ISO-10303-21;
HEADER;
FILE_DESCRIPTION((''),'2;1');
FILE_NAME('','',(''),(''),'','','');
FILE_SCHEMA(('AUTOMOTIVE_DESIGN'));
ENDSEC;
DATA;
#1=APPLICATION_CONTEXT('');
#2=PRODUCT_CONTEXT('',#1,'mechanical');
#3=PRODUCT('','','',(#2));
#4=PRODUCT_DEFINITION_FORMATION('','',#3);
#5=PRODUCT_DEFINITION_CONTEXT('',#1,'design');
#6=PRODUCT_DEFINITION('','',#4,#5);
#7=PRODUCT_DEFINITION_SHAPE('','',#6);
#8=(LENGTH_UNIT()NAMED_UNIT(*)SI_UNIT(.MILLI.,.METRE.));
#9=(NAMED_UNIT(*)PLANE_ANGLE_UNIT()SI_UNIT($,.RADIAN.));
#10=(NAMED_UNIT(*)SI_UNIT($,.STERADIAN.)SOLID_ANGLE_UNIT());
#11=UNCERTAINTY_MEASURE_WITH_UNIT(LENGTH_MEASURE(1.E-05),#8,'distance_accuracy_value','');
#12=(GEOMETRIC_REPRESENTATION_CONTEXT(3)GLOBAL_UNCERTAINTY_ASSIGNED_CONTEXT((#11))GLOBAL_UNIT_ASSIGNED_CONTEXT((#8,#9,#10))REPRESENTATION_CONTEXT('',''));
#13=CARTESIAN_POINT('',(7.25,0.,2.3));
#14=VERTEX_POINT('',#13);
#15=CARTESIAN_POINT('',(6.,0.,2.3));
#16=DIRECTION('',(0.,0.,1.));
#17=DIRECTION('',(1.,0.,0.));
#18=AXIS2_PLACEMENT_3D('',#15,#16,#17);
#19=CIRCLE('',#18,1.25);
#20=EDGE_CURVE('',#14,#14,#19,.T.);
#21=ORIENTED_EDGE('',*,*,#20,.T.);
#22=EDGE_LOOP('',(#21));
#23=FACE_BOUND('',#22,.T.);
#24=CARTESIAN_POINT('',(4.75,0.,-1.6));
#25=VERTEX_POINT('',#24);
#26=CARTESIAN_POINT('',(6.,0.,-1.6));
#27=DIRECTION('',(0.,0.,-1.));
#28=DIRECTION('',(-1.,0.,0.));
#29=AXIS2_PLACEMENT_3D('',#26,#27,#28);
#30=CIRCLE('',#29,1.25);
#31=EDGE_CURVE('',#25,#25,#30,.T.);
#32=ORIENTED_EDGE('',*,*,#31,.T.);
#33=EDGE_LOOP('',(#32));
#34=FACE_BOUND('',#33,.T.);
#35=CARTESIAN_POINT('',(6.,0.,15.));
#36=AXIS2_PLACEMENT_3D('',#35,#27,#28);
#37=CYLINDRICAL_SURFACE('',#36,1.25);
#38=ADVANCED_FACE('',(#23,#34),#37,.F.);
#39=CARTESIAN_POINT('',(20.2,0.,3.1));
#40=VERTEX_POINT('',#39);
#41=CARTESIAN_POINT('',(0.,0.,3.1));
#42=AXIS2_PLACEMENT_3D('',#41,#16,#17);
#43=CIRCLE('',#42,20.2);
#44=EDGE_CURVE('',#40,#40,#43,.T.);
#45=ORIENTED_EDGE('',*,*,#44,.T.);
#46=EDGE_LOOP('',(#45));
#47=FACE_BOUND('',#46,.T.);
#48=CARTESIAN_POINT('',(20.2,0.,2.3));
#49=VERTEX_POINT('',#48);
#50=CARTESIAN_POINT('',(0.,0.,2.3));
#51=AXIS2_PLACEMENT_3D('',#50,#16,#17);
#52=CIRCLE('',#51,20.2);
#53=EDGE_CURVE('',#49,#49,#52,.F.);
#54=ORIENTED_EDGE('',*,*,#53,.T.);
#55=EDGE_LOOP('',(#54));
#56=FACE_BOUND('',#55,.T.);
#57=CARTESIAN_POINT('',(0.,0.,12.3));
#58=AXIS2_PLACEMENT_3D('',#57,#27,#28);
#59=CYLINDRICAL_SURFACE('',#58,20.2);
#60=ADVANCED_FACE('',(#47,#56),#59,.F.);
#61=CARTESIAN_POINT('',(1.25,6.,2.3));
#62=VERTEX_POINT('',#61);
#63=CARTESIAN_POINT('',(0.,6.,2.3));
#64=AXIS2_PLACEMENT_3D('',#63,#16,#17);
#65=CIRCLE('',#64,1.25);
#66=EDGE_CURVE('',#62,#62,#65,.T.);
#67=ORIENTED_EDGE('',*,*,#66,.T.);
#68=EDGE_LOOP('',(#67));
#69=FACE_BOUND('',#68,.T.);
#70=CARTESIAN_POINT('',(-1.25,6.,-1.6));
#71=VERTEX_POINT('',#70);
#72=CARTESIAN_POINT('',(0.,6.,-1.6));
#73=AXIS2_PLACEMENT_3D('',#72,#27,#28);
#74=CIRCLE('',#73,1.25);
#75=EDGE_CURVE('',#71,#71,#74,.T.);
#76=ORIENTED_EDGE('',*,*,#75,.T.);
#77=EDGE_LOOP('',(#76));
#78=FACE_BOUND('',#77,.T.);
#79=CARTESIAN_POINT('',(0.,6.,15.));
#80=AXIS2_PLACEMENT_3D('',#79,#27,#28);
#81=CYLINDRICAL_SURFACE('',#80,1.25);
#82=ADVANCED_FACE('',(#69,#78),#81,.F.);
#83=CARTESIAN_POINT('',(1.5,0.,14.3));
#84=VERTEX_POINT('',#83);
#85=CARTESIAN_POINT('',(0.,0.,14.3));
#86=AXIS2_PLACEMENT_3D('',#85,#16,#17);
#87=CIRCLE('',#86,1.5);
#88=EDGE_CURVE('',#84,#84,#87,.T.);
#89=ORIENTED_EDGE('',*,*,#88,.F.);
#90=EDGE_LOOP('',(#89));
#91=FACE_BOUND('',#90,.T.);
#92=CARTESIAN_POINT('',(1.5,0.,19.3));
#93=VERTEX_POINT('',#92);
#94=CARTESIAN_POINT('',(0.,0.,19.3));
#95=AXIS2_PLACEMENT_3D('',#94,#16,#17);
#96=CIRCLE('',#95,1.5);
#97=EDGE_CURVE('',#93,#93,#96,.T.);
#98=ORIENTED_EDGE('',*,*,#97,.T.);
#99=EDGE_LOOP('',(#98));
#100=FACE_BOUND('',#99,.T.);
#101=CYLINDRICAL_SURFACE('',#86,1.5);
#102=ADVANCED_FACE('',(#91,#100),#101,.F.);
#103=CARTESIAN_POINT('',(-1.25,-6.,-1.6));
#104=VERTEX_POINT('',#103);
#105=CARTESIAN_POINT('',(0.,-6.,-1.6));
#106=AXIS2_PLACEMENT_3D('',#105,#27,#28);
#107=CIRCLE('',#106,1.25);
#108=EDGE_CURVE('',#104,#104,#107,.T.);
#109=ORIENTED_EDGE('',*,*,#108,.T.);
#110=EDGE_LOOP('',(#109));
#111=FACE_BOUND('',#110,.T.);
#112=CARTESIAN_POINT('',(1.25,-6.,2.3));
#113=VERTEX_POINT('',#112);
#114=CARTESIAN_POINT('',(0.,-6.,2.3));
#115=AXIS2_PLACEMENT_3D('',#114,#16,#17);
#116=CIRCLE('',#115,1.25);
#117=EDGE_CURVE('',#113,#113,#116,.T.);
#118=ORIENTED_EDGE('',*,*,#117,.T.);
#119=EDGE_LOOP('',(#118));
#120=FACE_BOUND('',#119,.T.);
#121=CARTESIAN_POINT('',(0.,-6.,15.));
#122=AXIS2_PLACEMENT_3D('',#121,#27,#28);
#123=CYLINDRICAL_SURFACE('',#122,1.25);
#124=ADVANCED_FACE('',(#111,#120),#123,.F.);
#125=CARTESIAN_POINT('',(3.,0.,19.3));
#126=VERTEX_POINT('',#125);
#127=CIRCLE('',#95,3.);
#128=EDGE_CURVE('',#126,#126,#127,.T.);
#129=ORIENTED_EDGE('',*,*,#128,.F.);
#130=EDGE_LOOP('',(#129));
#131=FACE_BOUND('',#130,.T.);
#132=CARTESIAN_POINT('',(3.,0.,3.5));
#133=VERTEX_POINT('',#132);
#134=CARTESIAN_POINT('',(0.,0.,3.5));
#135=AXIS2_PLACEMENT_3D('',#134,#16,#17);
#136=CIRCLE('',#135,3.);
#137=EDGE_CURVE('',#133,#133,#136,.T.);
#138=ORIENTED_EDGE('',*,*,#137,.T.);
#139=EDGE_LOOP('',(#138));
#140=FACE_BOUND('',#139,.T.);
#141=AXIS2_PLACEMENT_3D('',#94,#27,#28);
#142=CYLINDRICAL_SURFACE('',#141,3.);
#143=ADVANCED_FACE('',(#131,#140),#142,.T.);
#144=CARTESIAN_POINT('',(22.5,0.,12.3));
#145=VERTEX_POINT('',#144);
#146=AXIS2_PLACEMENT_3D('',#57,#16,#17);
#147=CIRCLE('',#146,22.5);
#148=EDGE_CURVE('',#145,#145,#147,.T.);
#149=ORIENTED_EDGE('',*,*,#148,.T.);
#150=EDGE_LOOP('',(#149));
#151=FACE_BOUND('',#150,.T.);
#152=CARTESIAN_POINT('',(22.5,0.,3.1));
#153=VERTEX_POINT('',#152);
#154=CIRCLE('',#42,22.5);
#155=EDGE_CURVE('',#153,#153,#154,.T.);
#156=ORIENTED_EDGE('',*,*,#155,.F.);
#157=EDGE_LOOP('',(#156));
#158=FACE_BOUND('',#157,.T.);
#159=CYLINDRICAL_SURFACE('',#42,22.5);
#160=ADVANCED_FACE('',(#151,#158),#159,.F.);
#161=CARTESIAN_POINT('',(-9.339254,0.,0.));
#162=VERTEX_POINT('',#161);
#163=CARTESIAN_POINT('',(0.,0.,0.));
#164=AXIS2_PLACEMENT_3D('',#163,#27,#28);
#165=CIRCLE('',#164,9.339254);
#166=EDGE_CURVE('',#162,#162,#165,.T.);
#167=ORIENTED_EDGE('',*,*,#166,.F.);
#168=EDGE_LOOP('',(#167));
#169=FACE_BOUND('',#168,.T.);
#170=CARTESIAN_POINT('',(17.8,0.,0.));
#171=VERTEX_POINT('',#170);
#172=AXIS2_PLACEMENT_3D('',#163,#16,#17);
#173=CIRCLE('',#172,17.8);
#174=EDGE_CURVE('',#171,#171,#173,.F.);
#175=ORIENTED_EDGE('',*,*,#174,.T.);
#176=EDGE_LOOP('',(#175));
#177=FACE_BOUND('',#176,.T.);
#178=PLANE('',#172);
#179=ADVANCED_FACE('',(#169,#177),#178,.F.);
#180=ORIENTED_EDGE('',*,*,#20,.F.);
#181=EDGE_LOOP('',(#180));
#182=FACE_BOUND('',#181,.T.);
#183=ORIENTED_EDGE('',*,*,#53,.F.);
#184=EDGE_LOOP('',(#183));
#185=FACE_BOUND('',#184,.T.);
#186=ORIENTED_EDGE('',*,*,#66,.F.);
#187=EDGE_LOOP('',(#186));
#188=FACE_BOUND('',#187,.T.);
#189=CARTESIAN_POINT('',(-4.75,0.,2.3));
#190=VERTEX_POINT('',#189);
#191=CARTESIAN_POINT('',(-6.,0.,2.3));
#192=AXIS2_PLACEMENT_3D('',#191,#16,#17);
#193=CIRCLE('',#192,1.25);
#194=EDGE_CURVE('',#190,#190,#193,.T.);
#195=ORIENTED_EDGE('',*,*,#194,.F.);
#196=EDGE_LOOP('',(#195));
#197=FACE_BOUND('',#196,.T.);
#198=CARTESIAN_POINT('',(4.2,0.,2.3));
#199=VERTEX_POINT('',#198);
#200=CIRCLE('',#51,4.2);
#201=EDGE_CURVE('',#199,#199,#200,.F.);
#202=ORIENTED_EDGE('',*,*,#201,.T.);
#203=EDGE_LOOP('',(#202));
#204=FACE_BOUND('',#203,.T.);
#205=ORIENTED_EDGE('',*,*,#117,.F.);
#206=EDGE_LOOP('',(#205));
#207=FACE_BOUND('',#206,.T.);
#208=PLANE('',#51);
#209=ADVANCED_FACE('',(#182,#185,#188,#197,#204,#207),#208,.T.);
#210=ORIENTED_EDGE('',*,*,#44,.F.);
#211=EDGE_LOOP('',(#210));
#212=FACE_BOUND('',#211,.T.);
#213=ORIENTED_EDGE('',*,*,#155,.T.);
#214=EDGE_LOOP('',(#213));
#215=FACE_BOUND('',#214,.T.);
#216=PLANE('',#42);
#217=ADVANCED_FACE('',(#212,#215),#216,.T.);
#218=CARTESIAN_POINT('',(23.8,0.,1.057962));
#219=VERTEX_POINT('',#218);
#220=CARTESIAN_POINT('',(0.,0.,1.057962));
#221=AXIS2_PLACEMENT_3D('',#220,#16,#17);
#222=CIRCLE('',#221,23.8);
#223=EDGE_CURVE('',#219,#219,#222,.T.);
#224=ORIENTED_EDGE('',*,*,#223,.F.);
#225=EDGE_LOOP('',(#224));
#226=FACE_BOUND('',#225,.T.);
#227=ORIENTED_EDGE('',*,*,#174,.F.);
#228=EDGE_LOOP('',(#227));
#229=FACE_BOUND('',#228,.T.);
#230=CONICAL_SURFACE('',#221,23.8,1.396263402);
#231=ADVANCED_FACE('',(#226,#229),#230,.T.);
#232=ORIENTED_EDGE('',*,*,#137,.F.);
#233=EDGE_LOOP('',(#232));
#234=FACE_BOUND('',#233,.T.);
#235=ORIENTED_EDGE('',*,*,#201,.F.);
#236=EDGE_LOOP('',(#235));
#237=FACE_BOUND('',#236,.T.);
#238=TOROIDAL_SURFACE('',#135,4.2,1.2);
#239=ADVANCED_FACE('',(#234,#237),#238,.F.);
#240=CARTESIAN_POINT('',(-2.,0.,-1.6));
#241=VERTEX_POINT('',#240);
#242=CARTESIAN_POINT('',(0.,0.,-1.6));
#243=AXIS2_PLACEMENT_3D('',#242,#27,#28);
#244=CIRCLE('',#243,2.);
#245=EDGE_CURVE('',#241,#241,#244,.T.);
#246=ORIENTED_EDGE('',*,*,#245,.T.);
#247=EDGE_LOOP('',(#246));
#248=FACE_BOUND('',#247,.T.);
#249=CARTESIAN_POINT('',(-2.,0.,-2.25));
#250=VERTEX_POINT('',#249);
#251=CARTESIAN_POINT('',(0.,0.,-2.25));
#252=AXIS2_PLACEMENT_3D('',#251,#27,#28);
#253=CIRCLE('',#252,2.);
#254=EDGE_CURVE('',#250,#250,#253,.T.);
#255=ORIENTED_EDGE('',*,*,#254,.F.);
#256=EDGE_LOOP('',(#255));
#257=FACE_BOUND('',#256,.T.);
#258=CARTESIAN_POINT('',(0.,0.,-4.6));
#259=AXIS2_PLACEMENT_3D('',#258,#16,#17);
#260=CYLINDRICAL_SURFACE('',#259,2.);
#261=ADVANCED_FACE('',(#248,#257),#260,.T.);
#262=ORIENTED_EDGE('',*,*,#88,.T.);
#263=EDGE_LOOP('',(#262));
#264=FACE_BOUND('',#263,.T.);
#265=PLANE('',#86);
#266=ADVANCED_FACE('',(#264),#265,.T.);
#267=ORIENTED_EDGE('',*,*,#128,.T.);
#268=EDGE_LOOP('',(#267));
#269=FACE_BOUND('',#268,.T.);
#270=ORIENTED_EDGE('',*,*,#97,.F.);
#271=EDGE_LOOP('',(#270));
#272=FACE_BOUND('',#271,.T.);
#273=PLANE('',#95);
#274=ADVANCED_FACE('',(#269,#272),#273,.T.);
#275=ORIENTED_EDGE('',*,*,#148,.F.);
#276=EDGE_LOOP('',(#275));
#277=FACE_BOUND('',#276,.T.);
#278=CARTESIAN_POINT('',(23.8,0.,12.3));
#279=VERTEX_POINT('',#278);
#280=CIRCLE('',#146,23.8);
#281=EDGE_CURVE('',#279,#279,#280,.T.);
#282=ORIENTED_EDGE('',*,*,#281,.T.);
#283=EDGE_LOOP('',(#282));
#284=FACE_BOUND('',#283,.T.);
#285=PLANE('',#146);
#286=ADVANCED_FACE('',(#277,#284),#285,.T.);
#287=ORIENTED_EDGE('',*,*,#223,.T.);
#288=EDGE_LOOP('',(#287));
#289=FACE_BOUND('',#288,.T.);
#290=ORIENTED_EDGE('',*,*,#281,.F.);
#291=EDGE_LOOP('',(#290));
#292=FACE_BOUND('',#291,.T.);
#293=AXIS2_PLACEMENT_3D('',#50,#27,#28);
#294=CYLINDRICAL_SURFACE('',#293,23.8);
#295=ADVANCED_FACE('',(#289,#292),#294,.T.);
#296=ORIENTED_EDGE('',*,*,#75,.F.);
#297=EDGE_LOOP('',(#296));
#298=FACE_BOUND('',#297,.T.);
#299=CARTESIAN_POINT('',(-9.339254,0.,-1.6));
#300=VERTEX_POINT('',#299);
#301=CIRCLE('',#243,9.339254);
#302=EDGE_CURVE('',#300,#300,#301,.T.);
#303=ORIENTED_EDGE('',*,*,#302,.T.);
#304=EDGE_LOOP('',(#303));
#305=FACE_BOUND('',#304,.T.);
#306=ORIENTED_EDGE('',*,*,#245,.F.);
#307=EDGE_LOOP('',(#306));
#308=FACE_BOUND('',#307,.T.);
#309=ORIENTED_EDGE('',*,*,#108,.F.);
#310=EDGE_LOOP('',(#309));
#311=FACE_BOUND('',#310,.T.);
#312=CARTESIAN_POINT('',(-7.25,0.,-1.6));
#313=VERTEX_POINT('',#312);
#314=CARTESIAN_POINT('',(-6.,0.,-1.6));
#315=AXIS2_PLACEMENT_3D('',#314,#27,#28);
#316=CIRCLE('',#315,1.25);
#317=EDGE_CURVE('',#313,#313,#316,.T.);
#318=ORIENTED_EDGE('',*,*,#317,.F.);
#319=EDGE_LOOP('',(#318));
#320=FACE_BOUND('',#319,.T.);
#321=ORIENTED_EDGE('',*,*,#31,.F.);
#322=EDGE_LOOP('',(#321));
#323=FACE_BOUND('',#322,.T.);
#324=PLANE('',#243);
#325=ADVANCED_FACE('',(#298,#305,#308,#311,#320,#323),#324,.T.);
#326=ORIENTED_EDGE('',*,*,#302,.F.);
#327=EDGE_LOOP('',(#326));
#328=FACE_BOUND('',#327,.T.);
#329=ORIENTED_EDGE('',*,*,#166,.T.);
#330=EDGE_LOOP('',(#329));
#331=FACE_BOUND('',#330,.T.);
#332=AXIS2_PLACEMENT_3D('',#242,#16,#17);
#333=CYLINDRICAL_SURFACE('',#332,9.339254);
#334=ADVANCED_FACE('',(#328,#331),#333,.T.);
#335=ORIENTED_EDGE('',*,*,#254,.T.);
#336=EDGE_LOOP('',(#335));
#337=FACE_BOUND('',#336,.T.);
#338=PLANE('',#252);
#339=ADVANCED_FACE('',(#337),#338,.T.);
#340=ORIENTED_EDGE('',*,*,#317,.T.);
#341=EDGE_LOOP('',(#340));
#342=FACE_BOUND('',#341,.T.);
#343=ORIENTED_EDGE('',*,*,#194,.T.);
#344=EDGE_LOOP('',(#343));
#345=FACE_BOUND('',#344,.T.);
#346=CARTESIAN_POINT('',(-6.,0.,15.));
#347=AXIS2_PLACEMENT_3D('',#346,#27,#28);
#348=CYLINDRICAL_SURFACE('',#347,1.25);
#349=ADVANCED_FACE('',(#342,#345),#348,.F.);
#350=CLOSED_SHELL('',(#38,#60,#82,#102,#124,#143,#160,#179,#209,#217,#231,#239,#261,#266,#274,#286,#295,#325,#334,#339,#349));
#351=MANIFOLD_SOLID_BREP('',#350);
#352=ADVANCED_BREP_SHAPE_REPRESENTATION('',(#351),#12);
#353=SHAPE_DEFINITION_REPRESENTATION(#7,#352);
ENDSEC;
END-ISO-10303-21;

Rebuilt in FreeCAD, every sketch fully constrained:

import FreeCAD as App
import Part
import Sketcher
from FreeCAD import Vector


def edges_at(feature, points):
    """Names of the edges that pass closest to the given points."""
    edges = feature.Shape.Edges
    near = lambda p: min(range(len(edges)), key=lambda i: edges[i].distToShape(Part.Vertex(*p))[0])
    return sorted({f"Edge{near(p) + 1}" for p in points})

doc = App.newDocument("Part")
body = doc.addObject("PartDesign::Body", "Body")

# Sketch on XY plane
sketch1 = body.newObject("Sketcher::SketchObject", "Sketch")
sketch1.AttachmentSupport = (doc.getObject("XY_Plane"), [""])
sketch1.MapMode = "FlatFace"
sketch1.addGeometry(Part.Circle(Vector(0, 0, 0), Vector(0, 0, 1), 24), False)
sketch1.addConstraint([
    Sketcher.Constraint("Coincident", 0, 3, -1, 1),
    Sketcher.Constraint("Diameter", 0, 47.6),
])
pad1 = body.newObject("PartDesign::Pad", "Pad")
pad1.Profile = sketch1
pad1.Length = 2.3

# Sketch on XY plane
sketch2 = body.newObject("Sketcher::SketchObject", "Sketch001")
sketch2.AttachmentSupport = (doc.getObject("XY_Plane"), [""])
sketch2.MapMode = "FlatFace"
sketch2.AttachmentOffset = App.Placement(Vector(0, 0, 2.3), App.Rotation())
sketch2.addGeometry([
    Part.Circle(Vector(0, 0, 0), Vector(0, 0, 1), 24),
    Part.Circle(Vector(0, 0, 0), Vector(0, 0, 1), 20),
], False)
sketch2.addConstraint([
    Sketcher.Constraint("Coincident", 0, 3, -1, 1),
    Sketcher.Constraint("Coincident", 1, 3, -1, 1),
    Sketcher.Constraint("Diameter", 0, 47.6),
    Sketcher.Constraint("Diameter", 1, 40.4),
])
pad2 = body.newObject("PartDesign::Pad", "Pad001")
pad2.Profile = sketch2
pad2.Length = 10

# Sketch on XY plane
sketch3 = body.newObject("Sketcher::SketchObject", "Sketch002")
sketch3.AttachmentSupport = (doc.getObject("XY_Plane"), [""])
sketch3.MapMode = "FlatFace"
sketch3.AttachmentOffset = App.Placement(Vector(0, 0, 2.3), App.Rotation())
sketch3.addGeometry(Part.Circle(Vector(0, 0, 0), Vector(0, 0, 1), 3), False)
sketch3.addConstraint([
    Sketcher.Constraint("Coincident", 0, 3, -1, 1),
    Sketcher.Constraint("Diameter", 0, 6.0),
])
pad3 = body.newObject("PartDesign::Pad", "Pad002")
pad3.Profile = sketch3
pad3.Length = 17
doc.recompute()

chamfer = body.newObject("PartDesign::Chamfer", "Chamfer")
chamfer.Base = (pad3, edges_at(pad3, [(-23.8, 0, 0)]))
chamfer.ChamferType = "Two distances"
chamfer.Size = 6
chamfer.Size2 = 1.057962
chamfer.FlipDirection = True

# Sketch on XY plane
sketch4 = body.newObject("Sketcher::SketchObject", "Sketch003")
sketch4.AttachmentSupport = (doc.getObject("XY_Plane"), [""])
sketch4.MapMode = "FlatFace"
sketch4.addGeometry([
    Part.Circle(Vector(-6, 0, 0), Vector(0, 0, 1), 1.2),
    Part.Circle(Vector(0, -6, 0), Vector(0, 0, 1), 1.2),
    Part.Circle(Vector(6, 0, 0), Vector(0, 0, 1), 1.2),
    Part.Circle(Vector(0, 6, 0), Vector(0, 0, 1), 1.2),
], False)
sketch4.addConstraint([
    Sketcher.Constraint("Equal", 0, 1),
    Sketcher.Constraint("Equal", 1, 2),
    Sketcher.Constraint("Equal", 2, 3),
    Sketcher.Constraint("Symmetric", 0, 3, 2, 3, -1, 1),
    Sketcher.Constraint("Symmetric", 1, 3, 3, 3, -1, 1),
    Sketcher.Constraint("PointOnObject", 0, 3, -1),
    Sketcher.Constraint("PointOnObject", 1, 3, -2),
    Sketcher.Constraint("Diameter", 0, 2.5),
    Sketcher.Constraint("DistanceX", 0, 3, -1, 1, 6.0),
    Sketcher.Constraint("DistanceY", 1, 3, -1, 1, 6.0),
])
pocket1 = body.newObject("PartDesign::Pocket", "Pocket")
pocket1.Profile = sketch4
pocket1.Length = 15
pocket1.Reversed = True

# Sketch on XY plane
sketch5 = body.newObject("Sketcher::SketchObject", "Sketch004")
sketch5.AttachmentSupport = (doc.getObject("XY_Plane"), [""])
sketch5.MapMode = "FlatFace"
sketch5.AttachmentOffset = App.Placement(Vector(0, 0, 3.1), App.Rotation())
sketch5.addGeometry([
    Part.Circle(Vector(0, 0, 0), Vector(0, 0, 1), 22),
    Part.Circle(Vector(0, 0, 0), Vector(0, 0, 1), 20),
], False)
sketch5.addConstraint([
    Sketcher.Constraint("Coincident", 0, 3, -1, 1),
    Sketcher.Constraint("Coincident", 1, 3, -1, 1),
    Sketcher.Constraint("Diameter", 0, 45.0),
    Sketcher.Constraint("Diameter", 1, 40.4),
])
pocket2 = body.newObject("PartDesign::Pocket", "Pocket001")
pocket2.Profile = sketch5
pocket2.Length = 9.2
pocket2.Reversed = True

# Sketch on XY plane
sketch6 = body.newObject("Sketcher::SketchObject", "Sketch005")
sketch6.AttachmentSupport = (doc.getObject("XY_Plane"), [""])
sketch6.MapMode = "FlatFace"
sketch6.AttachmentOffset = App.Placement(Vector(0, 0, 19.3), App.Rotation())
sketch6.addGeometry(Part.Circle(Vector(0, 0, 0), Vector(0, 0, 1), 1.5), False)
sketch6.addConstraint([
    Sketcher.Constraint("Coincident", 0, 3, -1, 1),
    Sketcher.Constraint("Diameter", 0, 3.0),
])
pocket3 = body.newObject("PartDesign::Pocket", "Pocket002")
pocket3.Profile = sketch6
pocket3.Length = 5
doc.recompute()

fillet = body.newObject("PartDesign::Fillet", "Fillet")
fillet.Base = (pocket3, edges_at(pocket3, [(-3, 0, 2.3)]))
fillet.Radius = 1.2

# Sketch on XY plane
sketch7 = body.newObject("Sketcher::SketchObject", "Sketch006")
sketch7.AttachmentSupport = (doc.getObject("XY_Plane"), [""])
sketch7.MapMode = "FlatFace"
sketch7.AttachmentOffset = App.Placement(Vector(0, 0, -1.6), App.Rotation())
sketch7.addGeometry([
    Part.Circle(Vector(0, 0, 0), Vector(0, 0, 1), 9.3),  # 0
    Part.Circle(Vector(0, -6, 0), Vector(0, 0, 1), 1.2),  # 1
    Part.Circle(Vector(6, 0, 0), Vector(0, 0, 1), 1.2),  # 2
    Part.Circle(Vector(-6, 0, 0), Vector(0, 0, 1), 1.2),  # 3
    Part.Circle(Vector(0, 6, 0), Vector(0, 0, 1), 1.2),  # 4
], False)
sketch7.addConstraint([
    Sketcher.Constraint("Coincident", 0, 3, -1, 1),
    Sketcher.Constraint("Equal", 1, 2),
    Sketcher.Constraint("Equal", 2, 3),
    Sketcher.Constraint("Equal", 3, 4),
    Sketcher.Constraint("Symmetric", 2, 3, 3, 3, -1, 1),
    Sketcher.Constraint("Symmetric", 1, 3, 4, 3, -1, 1),
    Sketcher.Constraint("PointOnObject", 1, 3, -2),
    Sketcher.Constraint("PointOnObject", 2, 3, -1),
    Sketcher.Constraint("Diameter", 1, 2.5),
    Sketcher.Constraint("DistanceY", 1, 3, -1, 1, 6.0),
    Sketcher.Constraint("DistanceX", -1, 1, 2, 3, 6.0),
    Sketcher.Constraint("Diameter", 0, 18.678508),
])
pad4 = body.newObject("PartDesign::Pad", "Pad003")
pad4.Profile = sketch7
pad4.Length = 1.6

# Sketch on XY plane
sketch8 = body.newObject("Sketcher::SketchObject", "Sketch007")
sketch8.AttachmentSupport = (doc.getObject("XY_Plane"), [""])
sketch8.MapMode = "FlatFace"
sketch8.AttachmentOffset = App.Placement(Vector(0, 0, -1.6), App.Rotation())
sketch8.addGeometry(Part.Circle(Vector(0, 0, 0), Vector(0, 0, 1), 2), False)
sketch8.addConstraint([
    Sketcher.Constraint("Coincident", 0, 3, -1, 1),
    Sketcher.Constraint("Diameter", 0, 4.0),
])
pad5 = body.newObject("PartDesign::Pad", "Pad004")
pad5.Profile = sketch8
pad5.Length = 3
pad5.Reversed = True

# Sketch on XY plane
sketch9 = body.newObject("Sketcher::SketchObject", "Sketch008")
sketch9.AttachmentSupport = (doc.getObject("XY_Plane"), [""])
sketch9.MapMode = "FlatFace"
sketch9.AttachmentOffset = App.Placement(Vector(0, 0, -4.6), App.Rotation())
sketch9.addGeometry(Part.Circle(Vector(0, 0, 0), Vector(0, 0, 1), 4.7), False)
sketch9.addConstraint([
    Sketcher.Constraint("Coincident", 0, 3, -1, 1),
    Sketcher.Constraint("Diameter", 0, 9.308677),
])
pocket4 = body.newObject("PartDesign::Pocket", "Pocket003")
pocket4.Profile = sketch9
pocket4.Length = 2.35
pocket4.Reversed = True

doc.recompute()
